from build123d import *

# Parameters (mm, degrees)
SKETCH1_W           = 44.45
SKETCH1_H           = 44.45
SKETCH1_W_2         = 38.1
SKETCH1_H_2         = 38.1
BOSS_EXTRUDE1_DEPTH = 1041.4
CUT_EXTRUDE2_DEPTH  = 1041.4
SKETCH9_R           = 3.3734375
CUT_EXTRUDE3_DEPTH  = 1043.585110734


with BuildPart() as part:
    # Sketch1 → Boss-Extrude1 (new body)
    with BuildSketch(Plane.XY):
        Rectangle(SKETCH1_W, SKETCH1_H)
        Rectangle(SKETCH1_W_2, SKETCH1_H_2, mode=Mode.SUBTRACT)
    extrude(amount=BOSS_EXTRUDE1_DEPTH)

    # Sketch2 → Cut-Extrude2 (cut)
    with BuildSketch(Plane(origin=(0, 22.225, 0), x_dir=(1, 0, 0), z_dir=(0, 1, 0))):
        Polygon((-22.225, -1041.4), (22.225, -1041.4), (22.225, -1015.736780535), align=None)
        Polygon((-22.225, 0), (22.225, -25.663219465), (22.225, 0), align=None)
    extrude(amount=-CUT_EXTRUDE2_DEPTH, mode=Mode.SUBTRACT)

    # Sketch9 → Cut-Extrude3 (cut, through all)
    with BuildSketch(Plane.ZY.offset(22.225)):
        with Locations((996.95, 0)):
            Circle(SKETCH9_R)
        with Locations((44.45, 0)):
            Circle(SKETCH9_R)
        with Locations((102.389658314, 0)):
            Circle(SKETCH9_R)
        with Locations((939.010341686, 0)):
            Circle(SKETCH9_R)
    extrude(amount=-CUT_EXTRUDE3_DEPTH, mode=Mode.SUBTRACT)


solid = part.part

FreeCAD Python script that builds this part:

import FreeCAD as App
import Part
import Sketcher
from FreeCAD import Vector
Q = App.Units.Quantity

doc = App.newDocument("Part")
params = doc.addObject("Spreadsheet::Sheet", "Params")
for row, (alias, value) in enumerate([
    ("sketch1_width", "1.5 in"),
    ("sketch1_width2", "1.75 in"),
    ("pad1_length", "41 in"),
    ("sketch2_width", "1.75 in"),
    ("pocket1_length", "41 in"),
    ("sketch3_diameter", "0.265625 in"),
], start=1):
    params.set(f"A{row}", alias)
    params.set(f"B{row}", "=" + value)
    params.setAlias(f"B{row}", alias)

body = doc.addObject("PartDesign::Body", "Body")

sketch1 = body.newObject("Sketcher::SketchObject", "Sketch")
sketch1.AttachmentSupport = (doc.getObject("XY_Plane"), [""])
sketch1.MapMode = "FlatFace"
sketch1.addGeometry([
    Part.LineSegment(Vector(-22, 22, 0), Vector(-22, -22, 0)),
    Part.LineSegment(Vector(-22, -22, 0), Vector(22, -22, 0)),
    Part.LineSegment(Vector(22, -22, 0), Vector(22, 22, 0)),
    Part.LineSegment(Vector(22, 22, 0), Vector(-22, 22, 0)),
    Part.LineSegment(Vector(19, -19, 0), Vector(-19, -19, 0)),
    Part.LineSegment(Vector(-19, -19, 0), Vector(-19, 19, 0)),
    Part.LineSegment(Vector(-19, 19, 0), Vector(19, 19, 0)),
    Part.LineSegment(Vector(19, 19, 0), Vector(19, -19, 0)),
], False)
sketch1.addConstraint([
    Sketcher.Constraint("Coincident", 0, 2, 1, 1),
    Sketcher.Constraint("Coincident", 1, 2, 2, 1),
    Sketcher.Constraint("Coincident", 2, 2, 3, 1),
    Sketcher.Constraint("Coincident", 3, 2, 0, 1),
    Sketcher.Constraint("Coincident", 4, 2, 5, 1),
    Sketcher.Constraint("Coincident", 5, 2, 6, 1),
    Sketcher.Constraint("Coincident", 6, 2, 7, 1),
    Sketcher.Constraint("Coincident", 7, 2, 4, 1),
    Sketcher.Constraint("Vertical", 0),
    Sketcher.Constraint("Horizontal", 1),
    Sketcher.Constraint("Vertical", 2),
    Sketcher.Constraint("Horizontal", 3),
    Sketcher.Constraint("Horizontal", 4),
    Sketcher.Constraint("Vertical", 5),
    Sketcher.Constraint("Horizontal", 6),
    Sketcher.Constraint("Vertical", 7),
    Sketcher.Constraint("Symmetric", 0, 2, 2, 2, -1, 1),
    Sketcher.Constraint("Symmetric", 4, 2, 6, 2, -1, 1),
    Sketcher.Constraint("Equal", 3, 0),
    Sketcher.Constraint("Equal", 6, 5),
    Sketcher.Constraint("DistanceX", 4, 2, 4, 1, Q("1.5 in")),
    Sketcher.Constraint("DistanceX", 1, 1, 1, 2, Q("1.75 in")),
])
sketch1.setExpression("Constraints[20]", "Params.sketch1_width")
sketch1.setExpression("Constraints[21]", "Params.sketch1_width2")
pad1 = body.newObject("PartDesign::Pad", "Pad")
pad1.Profile = sketch1
pad1.setExpression("Length", "Params.pad1_length")

sketch2 = body.newObject("Sketcher::SketchObject", "Sketch001")
sketch2.AttachmentSupport = (doc.getObject("XZ_Plane"), [""])
sketch2.MapMode = "FlatFace"
sketch2.AttachmentOffset = App.Placement(Vector(0, 0, -0.875 * 25.4), App.Rotation())
sketch2.addGeometry([
    Part.LineSegment(Vector(-22, 1041, 0), Vector(22, 1041, 0)),
    Part.LineSegment(Vector(22, 1041, 0), Vector(22, 1016, 0)),
    Part.LineSegment(Vector(22, 1016, 0), Vector(-22, 1041, 0)),
    Part.LineSegment(Vector(-22, 0, 0), Vector(22, 26, 0)),
    Part.LineSegment(Vector(22, 26, 0), Vector(22, 0, 0)),
    Part.LineSegment(Vector(22, 0, 0), Vector(-22, 0, 0)),
], False)
sketch2.addConstraint([
    Sketcher.Constraint("Coincident", 0, 2, 1, 1),
    Sketcher.Constraint("Coincident", 1, 2, 2, 1),
    Sketcher.Constraint("Coincident", 2, 2, 0, 1),
    Sketcher.Constraint("Coincident", 3, 2, 4, 1),
    Sketcher.Constraint("Coincident", 4, 2, 5, 1),
    Sketcher.Constraint("Coincident", 5, 2, 3, 1),
    Sketcher.Constraint("Horizontal", 0),
    Sketcher.Constraint("Vertical", 1),
    Sketcher.Constraint("Vertical", 4),
    Sketcher.Constraint("Horizontal", 5),
    Sketcher.Constraint("Symmetric", 4, 2, 5, 2, -1, 1),
    Sketcher.Constraint("Vertical", 1, 2, 3, 2),
    Sketcher.Constraint("Vertical", 2, 2, 5, 2),
    Sketcher.Constraint("Equal", 1, 4),
    Sketcher.Constraint("DistanceY", -1, 1, 0, 2, Q("41 in")),
    Sketcher.Constraint("Angle", 2, Q("150 deg")),
    Sketcher.Constraint("DistanceX", 0, 1, 0, 2, Q("1.75 in")),
])
sketch2.setExpression("Constraints[16]", "Params.sketch2_width")
pocket1 = body.newObject("PartDesign::Pocket", "Pocket")
pocket1.Profile = sketch2
pocket1.setExpression("Length", "Params.pocket1_length")
pocket1.Reversed = True

sketch3 = body.newObject("Sketcher::SketchObject", "Sketch002")
sketch3.AttachmentSupport = (doc.getObject("YZ_Plane"), [""])
sketch3.MapMode = "FlatFace"
sketch3.AttachmentOffset = App.Placement(Vector(0, 0, -0.875 * 25.4), App.Rotation())
sketch3.addGeometry([
    Part.Circle(Vector(0, 997, 0), Vector(0, 0, 1), 3.4),
    Part.Circle(Vector(0, 44.5, 0), Vector(0, 0, 1), 3.4),
    Part.Circle(Vector(0, 102.4, 0), Vector(0, 0, 1), 3.4),
    Part.Circle(Vector(0, 939, 0), Vector(0, 0, 1), 3.4),
], False)
sketch3.addConstraint([
    Sketcher.Constraint("Equal", 0, 1),
    Sketcher.Constraint("Equal", 1, 2),
    Sketcher.Constraint("Equal", 2, 3),
    Sketcher.Constraint("PointOnObject", 0, 3, -2),
    Sketcher.Constraint("PointOnObject", 1, 3, -2),
    Sketcher.Constraint("PointOnObject", 2, 3, -2),
    Sketcher.Constraint("PointOnObject", 3, 3, -2),
    Sketcher.Constraint("Diameter", 0, Q("0.265625 in")),
    Sketcher.Constraint("DistanceY", 1, 3, 0, 3, Q("37.5 in")),
    Sketcher.Constraint("DistanceY", -1, 1, 0, 3, Q("39.25 in")),
    Sketcher.Constraint("DistanceY", -1, 1, 2, 3, Q("102.389658 mm")),
    Sketcher.Constraint("DistanceY", -1, 1, 3, 3, Q("939.010342 mm")),
])
sketch3.setExpression("Constraints[7]", "Params.sketch3_diameter")
pocket2 = body.newObject("PartDesign::Pocket", "Pocket001")
pocket2.Profile = sketch3
pocket2.Type = "ThroughAll"
pocket2.Reversed = True

doc.recompute()
